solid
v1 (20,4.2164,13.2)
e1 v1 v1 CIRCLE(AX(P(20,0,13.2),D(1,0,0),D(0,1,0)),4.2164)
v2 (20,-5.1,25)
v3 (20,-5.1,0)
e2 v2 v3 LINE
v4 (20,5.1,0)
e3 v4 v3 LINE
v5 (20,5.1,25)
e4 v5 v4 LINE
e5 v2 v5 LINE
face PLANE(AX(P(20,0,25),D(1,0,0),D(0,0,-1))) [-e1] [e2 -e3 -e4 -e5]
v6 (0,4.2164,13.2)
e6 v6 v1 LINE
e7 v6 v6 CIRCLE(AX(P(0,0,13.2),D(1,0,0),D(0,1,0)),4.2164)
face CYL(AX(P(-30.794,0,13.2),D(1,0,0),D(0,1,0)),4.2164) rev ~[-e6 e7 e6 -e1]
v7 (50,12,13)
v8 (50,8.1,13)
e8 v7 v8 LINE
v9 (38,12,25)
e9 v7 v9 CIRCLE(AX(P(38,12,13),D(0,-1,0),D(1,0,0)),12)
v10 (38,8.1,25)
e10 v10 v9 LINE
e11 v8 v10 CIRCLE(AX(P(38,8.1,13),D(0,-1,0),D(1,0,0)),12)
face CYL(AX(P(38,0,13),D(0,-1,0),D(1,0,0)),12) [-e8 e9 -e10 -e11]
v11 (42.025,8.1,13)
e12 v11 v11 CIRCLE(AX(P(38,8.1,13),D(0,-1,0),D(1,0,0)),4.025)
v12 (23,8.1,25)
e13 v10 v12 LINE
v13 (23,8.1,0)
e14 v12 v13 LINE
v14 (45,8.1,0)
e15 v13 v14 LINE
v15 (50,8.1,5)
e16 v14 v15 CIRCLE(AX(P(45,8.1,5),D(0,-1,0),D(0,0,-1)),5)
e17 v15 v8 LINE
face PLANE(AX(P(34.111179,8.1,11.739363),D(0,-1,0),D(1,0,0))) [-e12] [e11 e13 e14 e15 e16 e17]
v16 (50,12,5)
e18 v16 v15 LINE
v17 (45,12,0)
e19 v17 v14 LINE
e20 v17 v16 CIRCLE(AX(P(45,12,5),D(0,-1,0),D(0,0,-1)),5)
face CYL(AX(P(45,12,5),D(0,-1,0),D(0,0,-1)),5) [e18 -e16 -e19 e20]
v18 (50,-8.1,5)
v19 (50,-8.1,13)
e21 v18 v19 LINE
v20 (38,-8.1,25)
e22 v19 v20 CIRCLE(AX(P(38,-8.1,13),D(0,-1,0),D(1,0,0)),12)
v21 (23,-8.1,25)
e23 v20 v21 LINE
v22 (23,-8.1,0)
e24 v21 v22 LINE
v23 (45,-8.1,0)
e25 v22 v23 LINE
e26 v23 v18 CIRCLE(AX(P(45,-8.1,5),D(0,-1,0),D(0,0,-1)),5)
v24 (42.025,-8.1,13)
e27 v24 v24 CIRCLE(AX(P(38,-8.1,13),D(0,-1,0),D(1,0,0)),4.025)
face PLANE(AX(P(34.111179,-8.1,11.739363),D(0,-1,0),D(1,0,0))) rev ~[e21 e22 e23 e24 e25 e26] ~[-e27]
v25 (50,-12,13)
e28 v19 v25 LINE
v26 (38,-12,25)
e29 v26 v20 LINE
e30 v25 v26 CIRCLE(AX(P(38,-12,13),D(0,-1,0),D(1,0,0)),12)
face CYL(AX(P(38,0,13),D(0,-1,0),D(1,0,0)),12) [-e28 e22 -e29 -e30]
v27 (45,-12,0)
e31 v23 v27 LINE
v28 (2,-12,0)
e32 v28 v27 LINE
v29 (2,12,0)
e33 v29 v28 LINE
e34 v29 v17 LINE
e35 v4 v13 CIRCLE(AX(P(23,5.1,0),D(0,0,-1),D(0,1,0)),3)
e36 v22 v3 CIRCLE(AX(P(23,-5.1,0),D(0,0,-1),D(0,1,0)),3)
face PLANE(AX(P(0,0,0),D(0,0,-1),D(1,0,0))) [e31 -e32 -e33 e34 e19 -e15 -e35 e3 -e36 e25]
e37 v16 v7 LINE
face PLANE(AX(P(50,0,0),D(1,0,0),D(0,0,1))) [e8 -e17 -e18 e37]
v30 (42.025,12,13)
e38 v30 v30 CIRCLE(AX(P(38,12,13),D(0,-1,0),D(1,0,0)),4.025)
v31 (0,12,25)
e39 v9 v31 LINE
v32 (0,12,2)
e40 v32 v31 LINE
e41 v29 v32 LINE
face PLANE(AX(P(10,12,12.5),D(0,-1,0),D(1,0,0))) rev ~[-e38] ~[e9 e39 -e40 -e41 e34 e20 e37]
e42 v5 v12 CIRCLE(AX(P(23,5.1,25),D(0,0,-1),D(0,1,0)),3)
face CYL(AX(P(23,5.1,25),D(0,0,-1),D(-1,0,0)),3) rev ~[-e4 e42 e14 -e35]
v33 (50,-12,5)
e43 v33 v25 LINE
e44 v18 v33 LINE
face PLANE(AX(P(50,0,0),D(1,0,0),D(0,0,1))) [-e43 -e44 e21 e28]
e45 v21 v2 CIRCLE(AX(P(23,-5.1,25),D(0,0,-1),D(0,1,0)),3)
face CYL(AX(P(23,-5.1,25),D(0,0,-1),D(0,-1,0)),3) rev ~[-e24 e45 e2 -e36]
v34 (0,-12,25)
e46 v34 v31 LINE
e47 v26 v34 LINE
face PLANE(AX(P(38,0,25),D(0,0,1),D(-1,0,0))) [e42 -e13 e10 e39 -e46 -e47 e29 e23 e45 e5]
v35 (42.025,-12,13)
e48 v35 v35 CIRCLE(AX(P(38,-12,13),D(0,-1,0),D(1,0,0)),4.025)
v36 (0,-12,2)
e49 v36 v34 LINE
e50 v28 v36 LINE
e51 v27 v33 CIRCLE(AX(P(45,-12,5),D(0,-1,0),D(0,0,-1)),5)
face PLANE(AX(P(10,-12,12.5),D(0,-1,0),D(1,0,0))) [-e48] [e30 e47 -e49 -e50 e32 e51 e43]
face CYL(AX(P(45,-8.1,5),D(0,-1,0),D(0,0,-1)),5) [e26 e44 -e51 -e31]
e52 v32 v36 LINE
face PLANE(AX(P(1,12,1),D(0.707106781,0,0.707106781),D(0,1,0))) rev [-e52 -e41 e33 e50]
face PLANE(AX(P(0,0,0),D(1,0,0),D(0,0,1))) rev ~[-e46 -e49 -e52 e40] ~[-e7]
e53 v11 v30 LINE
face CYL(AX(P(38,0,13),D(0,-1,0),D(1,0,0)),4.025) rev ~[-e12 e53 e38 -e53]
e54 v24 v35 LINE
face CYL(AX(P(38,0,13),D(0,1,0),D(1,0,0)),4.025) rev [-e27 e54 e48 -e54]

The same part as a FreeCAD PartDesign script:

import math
import FreeCAD as App
import Part
import Sketcher

V = App.Vector


def edges_at(feature, points):
    """Names of the edges that pass closest to the given points."""
    edges = feature.Shape.Edges
    near = lambda p: min(range(len(edges)), key=lambda i: edges[i].distToShape(Part.Vertex(*p))[0])
    return sorted({f"Edge{near(p) + 1}" for p in points})

doc = App.newDocument("Part")
body = doc.addObject("PartDesign::Body", "Body")

# Sketch on XZ plane
sketch1 = doc.addObject("Sketcher::SketchObject", "Sketch")
body.addObject(sketch1)
sketch1.AttachmentSupport = (doc.XZ_Plane, [""])
sketch1.MapMode = "FlatFace"
sketch1.addGeometry([
    Part.LineSegment(V(0, 25, 0), V(0, 0, 0)),  # 0
    Part.LineSegment(V(0, 0, 0), V(50, 0, 0)),  # 1
    Part.LineSegment(V(50, 0, 0), V(50, 13, 0)),  # 2
    Part.ArcOfCircle(Part.Circle(V(38, 13, 0), V(0, 0, 1), 12), math.radians(0), math.radians(90)),  # 3
    Part.LineSegment(V(38, 25, 0), V(0, 25, 0)),  # 4
    Part.Circle(V(38, 13, 0), V(0, 0, 1), 4),  # 5
], False)
sketch1.addConstraint([
    Sketcher.Constraint("Coincident", 0, 2, 1, 1),
    Sketcher.Constraint("Coincident", 1, 2, 2, 1),
    Sketcher.Constraint("Tangent", 2, 2, 3, 1),
    Sketcher.Constraint("Tangent", 3, 2, 4, 1),
    Sketcher.Constraint("Coincident", 4, 2, 0, 1),
    Sketcher.Constraint("Vertical", 0),
    Sketcher.Constraint("Horizontal", 1),
    Sketcher.Constraint("Vertical", 2),
    Sketcher.Constraint("Horizontal", 4),
    Sketcher.Constraint("Coincident", 0, 2, -1, 1),
    Sketcher.Constraint("Coincident", 5, 3, 3, 3),
    Sketcher.Constraint("Radius", 3, 12.0),
    Sketcher.Constraint("Diameter", 5, 8.05),
    Sketcher.Constraint("DistanceX", 1, 1, 1, 2, 50.0),
    Sketcher.Constraint("DistanceY", 0, 2, 0, 1, 25.0),
])
pad1 = doc.addObject("PartDesign::Pad", "Pad")
body.addObject(pad1)
pad1.Profile = sketch1
pad1.Type = "TwoLengths"
pad1.Length = 12
pad1.Length2 = 12

# Sketch on XZ plane
sketch2 = doc.addObject("Sketcher::SketchObject", "Sketch001")
body.addObject(sketch2)
sketch2.AttachmentSupport = (doc.XZ_Plane, [""])
sketch2.MapMode = "FlatFace"
sketch2.addGeometry([
    Part.LineSegment(V(20, 25, 0), V(20, 0, 0)),  # 0
    Part.LineSegment(V(20, 0, 0), V(50, 0, 0)),  # 1
    Part.LineSegment(V(50, 0, 0), V(50, 13, 0)),  # 2
    Part.ArcOfCircle(Part.Circle(V(38, 13, 0), V(0, 0, 1), 12), math.radians(0), math.radians(90)),  # 3
    Part.LineSegment(V(38, 25, 0), V(20, 25, 0)),  # 4
    Part.Circle(V(38, 13, 0), V(0, 0, 1), 4),  # 5
], False)
sketch2.addConstraint([
    Sketcher.Constraint("Coincident", 0, 2, 1, 1),
    Sketcher.Constraint("Coincident", 1, 2, 2, 1),
    Sketcher.Constraint("Tangent", 2, 2, 3, 1),
    Sketcher.Constraint("Tangent", 3, 2, 4, 1),
    Sketcher.Constraint("Coincident", 4, 2, 0, 1),
    Sketcher.Constraint("Vertical", 0),
    Sketcher.Constraint("Horizontal", 1),
    Sketcher.Constraint("Vertical", 2),
    Sketcher.Constraint("Horizontal", 4),
    Sketcher.Constraint("Coincident", 5, 3, 3, 3),
    Sketcher.Constraint("PointOnObject", 0, 2, -1),
    Sketcher.Constraint("Radius", 3, 12.0),
    Sketcher.Constraint("Diameter", 5, 8.05),
    Sketcher.Constraint("DistanceX", 1, 1, 1, 2, 30.0),
    Sketcher.Constraint("DistanceY", 0, 2, 0, 1, 25.0),
    Sketcher.Constraint("DistanceX", -1, 1, 3, 3, 38.0),
])
pocket1 = doc.addObject("PartDesign::Pocket", "Pocket")
body.addObject(pocket1)
pocket1.Profile = sketch2
pocket1.Type = "TwoLengths"
pocket1.Length = 8.1
pocket1.Length2 = 8.1
doc.recompute()

fillet = doc.addObject("PartDesign::Fillet", "Fillet")
body.addObject(fillet)
fillet.Base = (pocket1, edges_at(pocket1, [(20, -8.1, 12.5), (20, 8.1, 12.5)]))
fillet.Radius = 3
doc.recompute()

fillet2 = doc.addObject("PartDesign::Fillet", "Fillet001")
body.addObject(fillet2)
fillet2.Base = (fillet, edges_at(fillet, [(50, -10.05, 0), (50, 10.05, 0)]))
fillet2.Radius = 5

# Sketch on YZ plane
sketch3 = doc.addObject("Sketcher::SketchObject", "Sketch002")
body.addObject(sketch3)
sketch3.AttachmentSupport = (doc.YZ_Plane, [""])
sketch3.MapMode = "FlatFace"
sketch3.addGeometry(Part.Circle(V(0, 13.2, 0), V(0, 0, 1), 4.2), False)
sketch3.addConstraint([
    Sketcher.Constraint("PointOnObject", 0, 3, -2),
    Sketcher.Constraint("Diameter", 0, 8.4328),
    Sketcher.Constraint("DistanceY", -1, 1, 0, 3, 13.2),
])
doc.recompute()
hole = doc.addObject("PartDesign::Hole", "Hole")
body.addObject(hole)
hole.Profile = sketch3
hole.ThreadType = "None"
hole.Diameter = 8.4328
hole.DepthType = "Dimension"
hole.Depth = 30.794
hole.DrillPoint = "Angled"
hole.DrillPointAngle = 118
hole.Reversed = True
doc.recompute()

chamfer = doc.addObject("PartDesign::Chamfer", "Chamfer")
body.addObject(chamfer)
chamfer.Base = (hole, edges_at(hole, [(0, 0, 0)]))
chamfer.Size = 2

doc.recompute()
